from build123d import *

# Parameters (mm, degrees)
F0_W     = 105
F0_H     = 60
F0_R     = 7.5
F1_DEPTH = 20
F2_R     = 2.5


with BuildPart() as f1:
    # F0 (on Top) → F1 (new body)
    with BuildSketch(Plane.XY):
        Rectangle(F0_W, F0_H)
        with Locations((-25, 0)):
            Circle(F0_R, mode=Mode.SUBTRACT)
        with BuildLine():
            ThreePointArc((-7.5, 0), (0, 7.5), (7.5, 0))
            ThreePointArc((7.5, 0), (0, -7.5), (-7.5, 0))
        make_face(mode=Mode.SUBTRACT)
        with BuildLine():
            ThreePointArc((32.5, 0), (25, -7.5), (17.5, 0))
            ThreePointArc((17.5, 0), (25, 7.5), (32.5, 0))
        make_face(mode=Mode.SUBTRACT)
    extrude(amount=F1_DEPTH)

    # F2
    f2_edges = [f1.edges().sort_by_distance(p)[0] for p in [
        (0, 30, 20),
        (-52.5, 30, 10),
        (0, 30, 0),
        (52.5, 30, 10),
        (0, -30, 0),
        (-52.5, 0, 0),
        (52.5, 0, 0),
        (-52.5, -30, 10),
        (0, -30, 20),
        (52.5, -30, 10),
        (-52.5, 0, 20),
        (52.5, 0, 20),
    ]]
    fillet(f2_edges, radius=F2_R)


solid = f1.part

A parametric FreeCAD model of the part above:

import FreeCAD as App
import Part
import Sketcher

V = App.Vector
Q = App.Units.Quantity


def edges_at(feature, points):
    """Names of the edges that pass closest to the given points."""
    edges = feature.Shape.Edges
    near = lambda p: min(range(len(edges)), key=lambda i: edges[i].distToShape(Part.Vertex(*p))[0])
    return sorted({f"Edge{near(p) + 1}" for p in points})

doc = App.newDocument("Part")
body = doc.addObject("PartDesign::Body", "Body")

sketch1 = doc.addObject("Sketcher::SketchObject", "Sketch")
body.addObject(sketch1)
sketch1.AttachmentSupport = (doc.XY_Plane, [""])
sketch1.MapMode = "FlatFace"
sketch1.addGeometry(Part.LineSegment(V(-52, 30, 0), V(-52, -30, 0)), False)
sketch1.addGeometry(Part.LineSegment(V(-52, -30, 0), V(52, -30, 0)), False)
sketch1.addGeometry(Part.LineSegment(V(52, -30, 0), V(52, 30, 0)), False)
sketch1.addGeometry(Part.LineSegment(V(52, 30, 0), V(-52, 30, 0)), False)
sketch1.addGeometry(Part.Circle(V(-25, 0, 0), V(0, 0, 1), 8), False)
sketch1.addGeometry(Part.Circle(V(0, 0, 0), V(0, 0, 1), 8), False)
sketch1.addGeometry(Part.Circle(V(25, 0, 0), V(0, 0, 1), 8), False)
sketch1.addConstraint(Sketcher.Constraint("Coincident", 0, 2, 1, 1))
sketch1.addConstraint(Sketcher.Constraint("Coincident", 1, 2, 2, 1))
sketch1.addConstraint(Sketcher.Constraint("Coincident", 2, 2, 3, 1))
sketch1.addConstraint(Sketcher.Constraint("Coincident", 3, 2, 0, 1))
sketch1.addConstraint(Sketcher.Constraint("Vertical", 0))
sketch1.addConstraint(Sketcher.Constraint("Horizontal", 1))
sketch1.addConstraint(Sketcher.Constraint("Vertical", 2))
sketch1.addConstraint(Sketcher.Constraint("Horizontal", 3))
sketch1.addConstraint(Sketcher.Constraint("Coincident", 5, 3, -1, 1))
sketch1.addConstraint(Sketcher.Constraint("Equal", 4, 5))
sketch1.addConstraint(Sketcher.Constraint("Equal", 5, 6))
sketch1.addConstraint(Sketcher.Constraint("Symmetric", 4, 3, 6, 3, -1, 1))
sketch1.addConstraint(Sketcher.Constraint("Symmetric", 0, 2, 2, 2, -1, 1))
sketch1.addConstraint(Sketcher.Constraint("PointOnObject", 4, 3, -1))
sketch1.addConstraint(Sketcher.Constraint("Diameter", 4, Q("15 mm")))
sketch1.addConstraint(Sketcher.Constraint("DistanceX", 1, 1, 1, 2, Q("105 mm")))
sketch1.addConstraint(Sketcher.Constraint("DistanceY", 0, 2, 0, 1, Q("60 mm")))
sketch1.addConstraint(Sketcher.Constraint("DistanceX", 4, 3, -1, 1, Q("25 mm")))
pad1 = doc.addObject("PartDesign::Pad", "Pad")
body.addObject(pad1)
pad1.Profile = sketch1
pad1.Length = 20
doc.recompute()

fillet = doc.addObject("PartDesign::Fillet", "Fillet")
body.addObject(fillet)
fillet.Base = (pad1, edges_at(pad1, [
    (0, 30, 20),
    (-52.5, 30, 10),
    (0, 30, 0),
    (52.5, 30, 10),
    (0, -30, 0),
    (-52.5, 0, 0),
    (52.5, 0, 0),
    (-52.5, -30, 10),
    (0, -30, 20),
    (52.5, -30, 10),
    (-52.5, 0, 20),
    (52.5, 0, 20),
]))
fillet.Radius = 2.5

doc.recompute()
